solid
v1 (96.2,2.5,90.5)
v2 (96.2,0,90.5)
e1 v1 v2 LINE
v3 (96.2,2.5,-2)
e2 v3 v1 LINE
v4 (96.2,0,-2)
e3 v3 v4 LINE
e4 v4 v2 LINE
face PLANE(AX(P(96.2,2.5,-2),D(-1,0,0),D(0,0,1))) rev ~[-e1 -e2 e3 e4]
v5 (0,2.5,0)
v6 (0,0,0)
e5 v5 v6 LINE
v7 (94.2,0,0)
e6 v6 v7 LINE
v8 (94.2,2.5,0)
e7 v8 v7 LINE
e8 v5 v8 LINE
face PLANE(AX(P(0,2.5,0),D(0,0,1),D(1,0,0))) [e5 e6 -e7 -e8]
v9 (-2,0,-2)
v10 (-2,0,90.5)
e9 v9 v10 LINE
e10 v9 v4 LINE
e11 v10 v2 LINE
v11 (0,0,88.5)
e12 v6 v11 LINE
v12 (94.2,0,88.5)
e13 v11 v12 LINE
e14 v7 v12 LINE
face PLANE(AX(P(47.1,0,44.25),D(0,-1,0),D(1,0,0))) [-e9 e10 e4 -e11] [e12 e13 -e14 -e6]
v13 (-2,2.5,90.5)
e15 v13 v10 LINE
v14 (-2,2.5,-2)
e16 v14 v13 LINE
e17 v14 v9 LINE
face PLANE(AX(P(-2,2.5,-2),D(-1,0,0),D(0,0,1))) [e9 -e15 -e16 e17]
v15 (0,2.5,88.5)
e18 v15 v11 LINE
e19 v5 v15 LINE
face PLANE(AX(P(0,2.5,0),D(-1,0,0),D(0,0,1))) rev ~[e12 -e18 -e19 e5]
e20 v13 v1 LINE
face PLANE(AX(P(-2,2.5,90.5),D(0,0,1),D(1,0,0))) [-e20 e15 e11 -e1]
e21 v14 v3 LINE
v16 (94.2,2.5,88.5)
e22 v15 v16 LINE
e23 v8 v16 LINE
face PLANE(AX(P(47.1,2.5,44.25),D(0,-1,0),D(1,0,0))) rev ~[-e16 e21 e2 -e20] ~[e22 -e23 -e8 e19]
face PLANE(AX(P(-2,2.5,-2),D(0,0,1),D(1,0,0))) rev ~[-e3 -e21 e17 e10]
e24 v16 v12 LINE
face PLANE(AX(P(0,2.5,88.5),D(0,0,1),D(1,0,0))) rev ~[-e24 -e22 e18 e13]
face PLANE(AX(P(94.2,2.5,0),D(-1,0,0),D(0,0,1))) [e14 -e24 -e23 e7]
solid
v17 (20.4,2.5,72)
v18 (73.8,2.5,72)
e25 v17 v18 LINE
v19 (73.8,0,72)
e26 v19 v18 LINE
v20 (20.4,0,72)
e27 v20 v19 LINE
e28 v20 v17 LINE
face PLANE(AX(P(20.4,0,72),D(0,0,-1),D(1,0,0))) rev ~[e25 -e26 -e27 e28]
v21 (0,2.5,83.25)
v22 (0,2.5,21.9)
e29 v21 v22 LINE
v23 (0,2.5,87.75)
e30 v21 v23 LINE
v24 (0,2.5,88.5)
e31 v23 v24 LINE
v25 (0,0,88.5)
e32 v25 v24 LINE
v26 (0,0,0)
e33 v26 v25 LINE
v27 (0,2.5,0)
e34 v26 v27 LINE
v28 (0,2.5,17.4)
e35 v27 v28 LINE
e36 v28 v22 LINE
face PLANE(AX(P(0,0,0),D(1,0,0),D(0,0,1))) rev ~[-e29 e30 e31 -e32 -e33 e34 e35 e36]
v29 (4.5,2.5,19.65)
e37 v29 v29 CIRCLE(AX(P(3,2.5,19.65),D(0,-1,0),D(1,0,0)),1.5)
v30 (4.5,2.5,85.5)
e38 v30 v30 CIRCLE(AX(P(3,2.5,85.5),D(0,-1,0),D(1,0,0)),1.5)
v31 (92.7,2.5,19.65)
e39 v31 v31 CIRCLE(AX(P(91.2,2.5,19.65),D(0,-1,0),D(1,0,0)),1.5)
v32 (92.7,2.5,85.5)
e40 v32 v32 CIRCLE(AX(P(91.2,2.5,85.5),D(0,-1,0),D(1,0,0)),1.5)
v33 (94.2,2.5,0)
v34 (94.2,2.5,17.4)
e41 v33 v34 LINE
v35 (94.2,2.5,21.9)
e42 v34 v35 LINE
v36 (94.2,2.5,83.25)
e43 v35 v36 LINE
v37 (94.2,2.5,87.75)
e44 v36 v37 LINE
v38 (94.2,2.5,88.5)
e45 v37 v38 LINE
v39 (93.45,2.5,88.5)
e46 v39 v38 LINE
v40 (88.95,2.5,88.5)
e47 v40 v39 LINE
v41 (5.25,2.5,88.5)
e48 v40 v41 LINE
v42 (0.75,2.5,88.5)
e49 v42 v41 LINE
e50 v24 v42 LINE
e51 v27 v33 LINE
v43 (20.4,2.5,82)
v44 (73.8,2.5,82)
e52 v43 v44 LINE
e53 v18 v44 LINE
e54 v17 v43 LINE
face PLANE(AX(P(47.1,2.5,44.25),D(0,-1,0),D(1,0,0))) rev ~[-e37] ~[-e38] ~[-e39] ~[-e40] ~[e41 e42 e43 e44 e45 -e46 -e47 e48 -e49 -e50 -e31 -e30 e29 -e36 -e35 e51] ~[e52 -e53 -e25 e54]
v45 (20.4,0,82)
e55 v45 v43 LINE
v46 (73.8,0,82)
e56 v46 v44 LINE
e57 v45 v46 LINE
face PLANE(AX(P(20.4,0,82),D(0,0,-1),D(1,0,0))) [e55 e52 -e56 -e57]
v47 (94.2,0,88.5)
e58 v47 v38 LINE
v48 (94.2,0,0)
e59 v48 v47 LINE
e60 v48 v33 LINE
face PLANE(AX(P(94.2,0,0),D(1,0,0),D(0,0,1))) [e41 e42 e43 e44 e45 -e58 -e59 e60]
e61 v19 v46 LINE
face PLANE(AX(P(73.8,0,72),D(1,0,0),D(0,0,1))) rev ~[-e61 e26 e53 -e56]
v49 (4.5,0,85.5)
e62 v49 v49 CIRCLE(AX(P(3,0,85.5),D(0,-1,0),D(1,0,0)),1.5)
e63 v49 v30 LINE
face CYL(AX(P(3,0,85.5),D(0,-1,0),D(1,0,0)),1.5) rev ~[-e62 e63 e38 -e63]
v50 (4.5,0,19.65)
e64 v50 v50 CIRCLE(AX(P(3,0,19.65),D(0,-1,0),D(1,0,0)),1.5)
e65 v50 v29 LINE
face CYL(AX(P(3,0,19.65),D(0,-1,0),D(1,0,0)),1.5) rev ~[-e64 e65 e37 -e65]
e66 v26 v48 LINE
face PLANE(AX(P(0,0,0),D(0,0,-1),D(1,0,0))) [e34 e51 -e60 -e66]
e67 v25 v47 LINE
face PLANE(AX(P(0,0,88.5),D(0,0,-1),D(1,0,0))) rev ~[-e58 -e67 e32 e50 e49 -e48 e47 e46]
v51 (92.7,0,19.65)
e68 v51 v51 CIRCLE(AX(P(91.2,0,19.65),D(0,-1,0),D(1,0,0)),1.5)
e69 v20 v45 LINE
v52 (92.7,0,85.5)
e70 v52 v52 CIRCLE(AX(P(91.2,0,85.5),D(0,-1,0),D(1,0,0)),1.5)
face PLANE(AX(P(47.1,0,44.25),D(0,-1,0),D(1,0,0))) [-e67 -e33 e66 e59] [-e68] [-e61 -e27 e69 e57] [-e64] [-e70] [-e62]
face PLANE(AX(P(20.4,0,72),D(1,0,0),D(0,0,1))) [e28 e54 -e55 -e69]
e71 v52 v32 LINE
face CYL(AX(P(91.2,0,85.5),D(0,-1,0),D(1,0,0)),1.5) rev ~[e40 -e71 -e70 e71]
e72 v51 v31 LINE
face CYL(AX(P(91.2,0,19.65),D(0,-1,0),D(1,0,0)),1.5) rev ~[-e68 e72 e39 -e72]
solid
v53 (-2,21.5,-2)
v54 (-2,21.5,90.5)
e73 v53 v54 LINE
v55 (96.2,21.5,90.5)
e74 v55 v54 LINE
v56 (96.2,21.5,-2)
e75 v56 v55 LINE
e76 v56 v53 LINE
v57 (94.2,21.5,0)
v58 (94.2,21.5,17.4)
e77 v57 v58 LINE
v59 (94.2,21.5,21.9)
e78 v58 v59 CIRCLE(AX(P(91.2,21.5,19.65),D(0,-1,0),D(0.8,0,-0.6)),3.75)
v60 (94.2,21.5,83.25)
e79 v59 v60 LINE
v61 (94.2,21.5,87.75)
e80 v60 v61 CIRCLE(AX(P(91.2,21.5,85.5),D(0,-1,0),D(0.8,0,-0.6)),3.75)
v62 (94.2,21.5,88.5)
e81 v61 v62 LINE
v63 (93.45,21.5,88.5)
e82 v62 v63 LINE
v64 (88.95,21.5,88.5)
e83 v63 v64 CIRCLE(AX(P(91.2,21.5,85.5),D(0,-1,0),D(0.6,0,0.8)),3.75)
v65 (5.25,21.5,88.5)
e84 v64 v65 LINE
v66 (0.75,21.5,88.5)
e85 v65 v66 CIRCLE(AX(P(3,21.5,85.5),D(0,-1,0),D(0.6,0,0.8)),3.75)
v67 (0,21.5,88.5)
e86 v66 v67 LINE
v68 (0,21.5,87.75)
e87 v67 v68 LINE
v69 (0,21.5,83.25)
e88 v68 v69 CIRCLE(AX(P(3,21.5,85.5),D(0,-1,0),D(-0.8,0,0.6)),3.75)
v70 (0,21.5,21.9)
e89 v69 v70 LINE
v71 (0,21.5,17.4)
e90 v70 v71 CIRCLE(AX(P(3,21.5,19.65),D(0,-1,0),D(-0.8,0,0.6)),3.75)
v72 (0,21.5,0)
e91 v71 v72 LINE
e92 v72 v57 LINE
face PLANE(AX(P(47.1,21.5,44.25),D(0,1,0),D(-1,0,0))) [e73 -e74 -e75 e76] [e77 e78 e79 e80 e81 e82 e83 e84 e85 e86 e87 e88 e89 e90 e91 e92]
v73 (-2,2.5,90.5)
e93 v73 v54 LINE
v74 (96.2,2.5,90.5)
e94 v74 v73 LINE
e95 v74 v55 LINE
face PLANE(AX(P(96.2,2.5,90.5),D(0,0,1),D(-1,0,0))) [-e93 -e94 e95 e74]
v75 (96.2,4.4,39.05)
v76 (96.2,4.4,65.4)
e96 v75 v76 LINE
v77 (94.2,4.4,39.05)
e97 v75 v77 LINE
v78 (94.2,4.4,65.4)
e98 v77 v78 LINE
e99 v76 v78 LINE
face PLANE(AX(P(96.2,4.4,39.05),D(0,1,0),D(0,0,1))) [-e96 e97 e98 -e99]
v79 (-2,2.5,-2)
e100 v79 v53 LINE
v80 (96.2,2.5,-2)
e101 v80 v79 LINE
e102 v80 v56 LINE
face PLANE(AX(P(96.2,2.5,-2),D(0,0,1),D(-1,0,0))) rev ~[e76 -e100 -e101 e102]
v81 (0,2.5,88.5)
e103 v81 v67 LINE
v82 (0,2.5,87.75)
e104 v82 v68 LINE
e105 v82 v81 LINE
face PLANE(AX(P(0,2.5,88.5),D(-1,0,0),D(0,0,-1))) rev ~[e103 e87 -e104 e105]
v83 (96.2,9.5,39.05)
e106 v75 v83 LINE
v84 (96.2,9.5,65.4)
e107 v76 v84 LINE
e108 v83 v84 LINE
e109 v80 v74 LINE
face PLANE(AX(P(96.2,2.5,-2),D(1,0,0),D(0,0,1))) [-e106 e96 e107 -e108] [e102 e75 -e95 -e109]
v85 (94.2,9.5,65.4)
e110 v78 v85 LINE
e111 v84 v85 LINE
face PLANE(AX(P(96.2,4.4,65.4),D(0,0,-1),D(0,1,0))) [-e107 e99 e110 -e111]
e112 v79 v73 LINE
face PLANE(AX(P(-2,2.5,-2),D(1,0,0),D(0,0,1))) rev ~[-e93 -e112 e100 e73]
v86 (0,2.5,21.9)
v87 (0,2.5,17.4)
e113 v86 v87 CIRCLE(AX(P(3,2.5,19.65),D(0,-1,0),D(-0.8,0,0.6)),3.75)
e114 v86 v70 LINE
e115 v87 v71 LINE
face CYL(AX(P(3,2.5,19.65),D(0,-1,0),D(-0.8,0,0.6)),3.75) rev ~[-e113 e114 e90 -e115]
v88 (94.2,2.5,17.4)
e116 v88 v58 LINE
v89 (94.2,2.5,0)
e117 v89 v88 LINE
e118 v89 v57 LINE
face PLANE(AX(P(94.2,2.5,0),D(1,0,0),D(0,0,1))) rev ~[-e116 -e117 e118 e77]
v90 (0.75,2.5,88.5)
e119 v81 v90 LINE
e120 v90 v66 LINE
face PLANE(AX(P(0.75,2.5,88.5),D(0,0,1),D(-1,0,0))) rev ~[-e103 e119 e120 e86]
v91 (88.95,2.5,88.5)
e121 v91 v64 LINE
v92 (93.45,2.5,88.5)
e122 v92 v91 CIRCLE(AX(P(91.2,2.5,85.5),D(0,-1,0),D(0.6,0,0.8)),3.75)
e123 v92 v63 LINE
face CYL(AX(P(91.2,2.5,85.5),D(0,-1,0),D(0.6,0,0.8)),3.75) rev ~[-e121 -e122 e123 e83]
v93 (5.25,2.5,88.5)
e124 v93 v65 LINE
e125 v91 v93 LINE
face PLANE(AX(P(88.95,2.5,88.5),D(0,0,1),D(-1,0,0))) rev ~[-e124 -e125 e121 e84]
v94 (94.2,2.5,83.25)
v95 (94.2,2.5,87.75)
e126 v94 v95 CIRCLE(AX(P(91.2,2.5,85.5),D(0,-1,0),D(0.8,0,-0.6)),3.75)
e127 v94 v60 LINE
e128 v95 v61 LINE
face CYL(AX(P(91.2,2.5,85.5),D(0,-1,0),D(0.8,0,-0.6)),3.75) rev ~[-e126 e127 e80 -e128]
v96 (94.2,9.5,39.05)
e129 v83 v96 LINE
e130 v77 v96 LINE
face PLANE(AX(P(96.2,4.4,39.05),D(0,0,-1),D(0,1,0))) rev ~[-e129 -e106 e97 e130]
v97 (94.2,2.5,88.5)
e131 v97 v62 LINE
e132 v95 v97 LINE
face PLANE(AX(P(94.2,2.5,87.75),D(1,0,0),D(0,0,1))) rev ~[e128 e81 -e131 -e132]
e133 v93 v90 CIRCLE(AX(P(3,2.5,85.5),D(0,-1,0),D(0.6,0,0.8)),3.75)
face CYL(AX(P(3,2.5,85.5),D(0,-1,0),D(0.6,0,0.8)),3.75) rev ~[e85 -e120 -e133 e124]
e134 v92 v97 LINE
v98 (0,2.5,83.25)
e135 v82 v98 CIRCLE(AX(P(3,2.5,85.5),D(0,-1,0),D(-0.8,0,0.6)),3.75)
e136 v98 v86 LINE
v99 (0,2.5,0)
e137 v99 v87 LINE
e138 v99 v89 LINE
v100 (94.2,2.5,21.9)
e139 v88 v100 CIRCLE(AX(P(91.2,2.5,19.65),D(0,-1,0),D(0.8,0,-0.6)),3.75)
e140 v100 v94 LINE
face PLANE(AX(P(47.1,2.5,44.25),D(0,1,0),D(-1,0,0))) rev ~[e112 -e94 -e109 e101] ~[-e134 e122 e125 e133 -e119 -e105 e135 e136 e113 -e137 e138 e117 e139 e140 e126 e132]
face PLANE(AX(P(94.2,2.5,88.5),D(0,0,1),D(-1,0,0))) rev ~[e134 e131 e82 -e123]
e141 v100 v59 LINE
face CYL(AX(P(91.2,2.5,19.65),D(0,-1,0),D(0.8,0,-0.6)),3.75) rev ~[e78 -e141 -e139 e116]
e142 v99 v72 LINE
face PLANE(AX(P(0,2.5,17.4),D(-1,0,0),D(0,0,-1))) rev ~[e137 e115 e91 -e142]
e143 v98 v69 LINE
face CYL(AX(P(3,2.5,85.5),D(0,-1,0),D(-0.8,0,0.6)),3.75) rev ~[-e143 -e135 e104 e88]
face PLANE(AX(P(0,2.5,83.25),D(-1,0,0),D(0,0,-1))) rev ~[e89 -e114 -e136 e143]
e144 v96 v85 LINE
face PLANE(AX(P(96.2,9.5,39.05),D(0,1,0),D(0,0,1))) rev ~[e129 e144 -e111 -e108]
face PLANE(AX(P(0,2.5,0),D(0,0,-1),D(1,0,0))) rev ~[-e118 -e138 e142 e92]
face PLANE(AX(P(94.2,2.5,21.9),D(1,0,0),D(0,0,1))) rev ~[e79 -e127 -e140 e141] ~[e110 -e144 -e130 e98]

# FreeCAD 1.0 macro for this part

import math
import FreeCAD as App
import Part
import Sketcher
from FreeCAD import Vector

doc = App.newDocument("Part")
body = doc.addObject("PartDesign::Body", "Body")
body.AllowCompound = True

# Sketch on XZ plane
sketch1 = body.newObject("Sketcher::SketchObject", "Sketch")
sketch1.AttachmentSupport = (doc.getObject("XZ_Plane"), [""])
sketch1.MapMode = "FlatFace"
sketch1.addGeometry([
    Part.LineSegment(Vector(0, 88.5, 0), Vector(0, 0, 0)),  # 0
    Part.LineSegment(Vector(0, 0, 0), Vector(94.2, 0, 0)),  # 1
    Part.LineSegment(Vector(94.2, 0, 0), Vector(94.2, 88.5, 0)),  # 2
    Part.LineSegment(Vector(94.2, 88.5, 0), Vector(0, 88.5, 0)),  # 3
    Part.Circle(Vector(3, 19.6, 0), Vector(0, 0, 1), 1.5),  # 4
    Part.Circle(Vector(91.2, 19.6, 0), Vector(0, 0, 1), 1.5),  # 5
    Part.Circle(Vector(3, 85.5, 0), Vector(0, 0, 1), 1.5),  # 6
    Part.LineSegment(Vector(73.8, 72, 0), Vector(20.4, 72, 0)),  # 7
    Part.LineSegment(Vector(20.4, 72, 0), Vector(20.4, 82, 0)),  # 8
    Part.LineSegment(Vector(20.4, 82, 0), Vector(73.8, 82, 0)),  # 9
    Part.LineSegment(Vector(73.8, 82, 0), Vector(73.8, 72, 0)),  # 10
    Part.Circle(Vector(91.2, 85.5, 0), Vector(0, 0, 1), 1.5),  # 11
], False)
sketch1.addConstraint([
    Sketcher.Constraint("Coincident", 0, 2, 1, 1),
    Sketcher.Constraint("Coincident", 1, 2, 2, 1),
    Sketcher.Constraint("Coincident", 2, 2, 3, 1),
    Sketcher.Constraint("Coincident", 3, 2, 0, 1),
    Sketcher.Constraint("Coincident", 7, 2, 8, 1),
    Sketcher.Constraint("Coincident", 8, 2, 9, 1),
    Sketcher.Constraint("Coincident", 9, 2, 10, 1),
    Sketcher.Constraint("Coincident", 10, 2, 7, 1),
    Sketcher.Constraint("Vertical", 0),
    Sketcher.Constraint("Horizontal", 1),
    Sketcher.Constraint("Vertical", 2),
    Sketcher.Constraint("Horizontal", 3),
    Sketcher.Constraint("Horizontal", 7),
    Sketcher.Constraint("Vertical", 8),
    Sketcher.Constraint("Horizontal", 9),
    Sketcher.Constraint("Vertical", 10),
    Sketcher.Constraint("Coincident", 0, 2, -1, 1),
    Sketcher.Constraint("Equal", 4, 5),
    Sketcher.Constraint("Equal", 5, 6),
    Sketcher.Constraint("Equal", 6, 11),
    Sketcher.Constraint("Horizontal", 4, 3, 5, 3),
    Sketcher.Constraint("Horizontal", 6, 3, 11, 3),
    Sketcher.Constraint("Vertical", 4, 3, 6, 3),
    Sketcher.Constraint("Vertical", 5, 3, 11, 3),
    Sketcher.Constraint("Diameter", 4, 3.0),
    Sketcher.Constraint("DistanceY", 8, 1, 8, 2, 10.0),
    Sketcher.Constraint("DistanceX", 1, 1, 1, 2, 94.2),
    Sketcher.Constraint("DistanceX", 7, 2, 7, 1, 53.4),
    Sketcher.Constraint("DistanceY", 0, 2, 0, 1, 88.5),
    Sketcher.Constraint("DistanceX", -1, 1, 4, 3, 3.0),
    Sketcher.Constraint("DistanceY", -1, 1, 7, 2, 72.0),
    Sketcher.Constraint("DistanceX", 5, 3, 1, 2, 3.0),
    Sketcher.Constraint("DistanceY", 11, 3, 2, 2, 3.0),
    Sketcher.Constraint("DistanceX", -1, 1, 7, 2, 20.4),
    Sketcher.Constraint("DistanceY", -1, 1, 4, 3, 19.65),
])
pad1 = body.newObject("PartDesign::Pad", "Pad")
pad1.Profile = sketch1
pad1.Length = 2.5
pad1.Reversed = True

# Sketch on XZ plane
sketch2 = body.newObject("Sketcher::SketchObject", "Sketch001")
sketch2.AttachmentSupport = (doc.getObject("XZ_Plane"), [""])
sketch2.MapMode = "FlatFace"
sketch2.AttachmentOffset = App.Placement(Vector(0, 0, -2.5), App.Rotation())
sketch2.addGeometry([
    Part.LineSegment(Vector(96.2, 90.5, 0), Vector(96.2, -2, 0)),  # 0
    Part.LineSegment(Vector(96.2, -2, 0), Vector(-2, -2, 0)),  # 1
    Part.LineSegment(Vector(-2, -2, 0), Vector(-2, 90.5, 0)),  # 2
    Part.LineSegment(Vector(-2, 90.5, 0), Vector(96.2, 90.5, 0)),  # 3
    Part.ArcOfCircle(Part.Circle(Vector(91.2, 85.5, 0), Vector(0, 0, 1), 3.8), math.radians(-37), math.radians(37)),  # 4
    Part.LineSegment(Vector(94.2, 87.8, 0), Vector(94.2, 88.5, 0)),  # 5
    Part.LineSegment(Vector(94.2, 88.5, 0), Vector(93.5, 88.5, 0)),  # 6
    Part.ArcOfCircle(Part.Circle(Vector(91.2, 85.5, 0), Vector(0, 0, 1), 3.8), math.radians(53), math.radians(127)),  # 7
    Part.LineSegment(Vector(89, 88.5, 0), Vector(5.2, 88.5, 0)),  # 8
    Part.ArcOfCircle(Part.Circle(Vector(3, 85.5, 0), Vector(0, 0, 1), 3.8), math.radians(53), math.radians(127)),  # 9
    Part.LineSegment(Vector(0.8, 88.5, 0), Vector(0, 88.5, 0)),  # 10
    Part.LineSegment(Vector(0, 88.5, 0), Vector(0, 87.8, 0)),  # 11
    Part.ArcOfCircle(Part.Circle(Vector(3, 85.5, 0), Vector(0, 0, 1), 3.8), math.radians(143), math.radians(217)),  # 12
    Part.LineSegment(Vector(0, 83.2, 0), Vector(0, 21.9, 0)),  # 13
    Part.ArcOfCircle(Part.Circle(Vector(3, 19.6, 0), Vector(0, 0, 1), 3.8), math.radians(143), math.radians(217)),  # 14
    Part.LineSegment(Vector(0, 17.4, 0), Vector(0, 0, 0)),  # 15
    Part.LineSegment(Vector(0, 0, 0), Vector(94.2, 0, 0)),  # 16
    Part.LineSegment(Vector(94.2, 0, 0), Vector(94.2, 17.4, 0)),  # 17
    Part.ArcOfCircle(Part.Circle(Vector(91.2, 19.6, 0), Vector(0, 0, 1), 3.8), math.radians(-37), math.radians(37)),  # 18
    Part.LineSegment(Vector(94.2, 21.9, 0), Vector(94.2, 83.2, 0)),  # 19
], False)
sketch2.addConstraint([
    Sketcher.Constraint("Coincident", 0, 2, 1, 1),
    Sketcher.Constraint("Coincident", 1, 2, 2, 1),
    Sketcher.Constraint("Coincident", 2, 2, 3, 1),
    Sketcher.Constraint("Coincident", 3, 2, 0, 1),
    Sketcher.Constraint("Coincident", 4, 2, 5, 1),
    Sketcher.Constraint("Coincident", 5, 2, 6, 1),
    Sketcher.Constraint("Coincident", 6, 2, 7, 1),
    Sketcher.Constraint("Coincident", 7, 2, 8, 1),
    Sketcher.Constraint("Coincident", 8, 2, 9, 1),
    Sketcher.Constraint("Coincident", 9, 2, 10, 1),
    Sketcher.Constraint("Coincident", 10, 2, 11, 1),
    Sketcher.Constraint("Coincident", 11, 2, 12, 1),
    Sketcher.Constraint("Coincident", 12, 2, 13, 1),
    Sketcher.Constraint("Coincident", 13, 2, 14, 1),
    Sketcher.Constraint("Coincident", 14, 2, 15, 1),
    Sketcher.Constraint("Coincident", 15, 2, 16, 1),
    Sketcher.Constraint("Coincident", 16, 2, 17, 1),
    Sketcher.Constraint("Coincident", 17, 2, 18, 1),
    Sketcher.Constraint("Coincident", 18, 2, 19, 1),
    Sketcher.Constraint("Coincident", 19, 2, 4, 1),
    Sketcher.Constraint("Vertical", 0),
    Sketcher.Constraint("Horizontal", 1),
    Sketcher.Constraint("Vertical", 2),
    Sketcher.Constraint("Horizontal", 3),
    Sketcher.Constraint("Vertical", 5),
    Sketcher.Constraint("Horizontal", 6),
    Sketcher.Constraint("Horizontal", 8),
    Sketcher.Constraint("Horizontal", 10),
    Sketcher.Constraint("Vertical", 11),
    Sketcher.Constraint("Vertical", 13),
    Sketcher.Constraint("Vertical", 15),
    Sketcher.Constraint("Horizontal", 16),
    Sketcher.Constraint("Vertical", 17),
    Sketcher.Constraint("Vertical", 19),
    Sketcher.Constraint("Coincident", 15, 2, -1, 1),
    Sketcher.Constraint("Coincident", 7, 3, 4, 3),
    Sketcher.Constraint("Coincident", 12, 3, 9, 3),
    Sketcher.Constraint("Equal", 4, 7),
    Sketcher.Constraint("Equal", 7, 9),
    Sketcher.Constraint("Equal", 9, 12),
    Sketcher.Constraint("Equal", 12, 14),
    Sketcher.Constraint("Equal", 14, 18),
    Sketcher.Constraint("PointOnObject", 10, 2, -2),
    Sketcher.Constraint("PointOnObject", 12, 2, -2),
    Sketcher.Constraint("Horizontal", 7, 3, 9, 3),
    Sketcher.Constraint("Horizontal", 14, 3, 18, 3),
    Sketcher.Constraint("Horizontal", 6, 2, 7, 2),
    Sketcher.Constraint("Horizontal", 8, 2, 9, 2),
    Sketcher.Constraint("Horizontal", 4, 2, 11, 2),
    Sketcher.Constraint("Horizontal", 14, 2, 17, 2),
    Sketcher.Constraint("Horizontal", 13, 2, 18, 2),
    Sketcher.Constraint("Horizontal", 12, 2, 19, 2),
    Sketcher.Constraint("Vertical", 12, 3, 14, 3),
    Sketcher.Constraint("Equal", 10, 5),
    Sketcher.Constraint("Radius", 4, 3.75),
    Sketcher.Constraint("DistanceX", 1, 2, 1, 1, 98.2),
    Sketcher.Constraint("DistanceX", 8, 2, 8, 1, 83.7),
    Sketcher.Constraint("DistanceX", 16, 1, 16, 2, 94.2),
    Sketcher.Constraint("DistanceY", 0, 2, 0, 1, 92.5),
    Sketcher.Constraint("DistanceY", 15, 2, 15, 1, 17.4),
    Sketcher.Constraint("DistanceY", 0, 2, -1, 1, 2.0),
    Sketcher.Constraint("DistanceX", 1, 2, -1, 1, 2.0),
    Sketcher.Constraint("DistanceY", 9, 3, 2, 2, 5.0),
])
pad2 = body.newObject("PartDesign::Pad", "Pad001")
pad2.Profile = sketch2
pad2.Length = 19
pad2.Reversed = True

# Sketch on YZ plane
sketch3 = body.newObject("Sketcher::SketchObject", "Sketch002")
sketch3.AttachmentSupport = (doc.getObject("YZ_Plane"), [""])
sketch3.MapMode = "FlatFace"
sketch3.AttachmentOffset = App.Placement(Vector(0, 0, 96.2), App.Rotation())
sketch3.addGeometry([
    Part.LineSegment(Vector(4, 65, 0), Vector(4, 39, 0)),
    Part.LineSegment(Vector(4, 39, 0), Vector(10, 39, 0)),
    Part.LineSegment(Vector(10, 39, 0), Vector(10, 65, 0)),
    Part.LineSegment(Vector(10, 65, 0), Vector(4, 65, 0)),
], False)
sketch3.addConstraint([
    Sketcher.Constraint("Coincident", 0, 2, 1, 1),
    Sketcher.Constraint("Coincident", 1, 2, 2, 1),
    Sketcher.Constraint("Coincident", 2, 2, 3, 1),
    Sketcher.Constraint("Coincident", 3, 2, 0, 1),
    Sketcher.Constraint("Vertical", 0),
    Sketcher.Constraint("Horizontal", 1),
    Sketcher.Constraint("Vertical", 2),
    Sketcher.Constraint("Horizontal", 3),
    Sketcher.Constraint("DistanceX", 1, 1, 1, 2, 5.1),
    Sketcher.Constraint("DistanceY", 0, 2, 0, 1, 26.35),
    Sketcher.Constraint("DistanceX", -1, 1, 0, 2, 4.4),
    Sketcher.Constraint("DistanceY", -1, 1, 2, 2, 65.4),
])
pocket1 = body.newObject("PartDesign::Pocket", "Pocket")
pocket1.Profile = sketch3
pocket1.Length = 2.1
body2 = doc.addObject("PartDesign::Body", "Body001")

# Sketch on XZ plane
sketch4 = body2.newObject("Sketcher::SketchObject", "Sketch003")
sketch4.AttachmentSupport = (doc.getObject("XZ_Plane001"), [""])
sketch4.MapMode = "FlatFace"
sketch4.AttachmentOffset = App.Placement(Vector(0, 0, -2.5), App.Rotation())
sketch4.addGeometry([
    Part.LineSegment(Vector(-2, 90, 0), Vector(-2, -2, 0)),  # 0
    Part.LineSegment(Vector(-2, -2, 0), Vector(96, -2, 0)),  # 1
    Part.LineSegment(Vector(96, -2, 0), Vector(96, 90, 0)),  # 2
    Part.LineSegment(Vector(96, 90, 0), Vector(-2, 90, 0)),  # 3
    Part.LineSegment(Vector(94, 0, 0), Vector(0, 0, 0)),  # 4
    Part.LineSegment(Vector(0, 0, 0), Vector(0, 88, 0)),  # 5
    Part.LineSegment(Vector(0, 88, 0), Vector(94, 88, 0)),  # 6
    Part.LineSegment(Vector(94, 88, 0), Vector(94, 0, 0)),  # 7
], False)
sketch4.addConstraint([
    Sketcher.Constraint("Coincident", 0, 2, 1, 1),
    Sketcher.Constraint("Coincident", 1, 2, 2, 1),
    Sketcher.Constraint("Coincident", 2, 2, 3, 1),
    Sketcher.Constraint("Coincident", 3, 2, 0, 1),
    Sketcher.Constraint("Coincident", 4, 2, 5, 1),
    Sketcher.Constraint("Coincident", 5, 2, 6, 1),
    Sketcher.Constraint("Coincident", 6, 2, 7, 1),
    Sketcher.Constraint("Coincident", 7, 2, 4, 1),
    Sketcher.Constraint("Vertical", 0),
    Sketcher.Constraint("Horizontal", 1),
    Sketcher.Constraint("Vertical", 2),
    Sketcher.Constraint("Horizontal", 3),
    Sketcher.Constraint("Horizontal", 4),
    Sketcher.Constraint("Vertical", 5),
    Sketcher.Constraint("Horizontal", 6),
    Sketcher.Constraint("Vertical", 7),
    Sketcher.Constraint("Coincident", 4, 2, -1, 1),
    Sketcher.Constraint("DistanceX", 1, 1, 1, 2, 98.2),
    Sketcher.Constraint("DistanceX", 4, 2, 4, 1, 94.2),
    Sketcher.Constraint("DistanceY", 0, 2, 0, 1, 92.5),
    Sketcher.Constraint("DistanceY", 5, 1, 5, 2, 88.5),
    Sketcher.Constraint("DistanceX", 0, 2, -1, 1, 2.0),
    Sketcher.Constraint("DistanceY", 0, 2, -1, 1, 2.0),
])
pad3 = body2.newObject("PartDesign::Pad", "Pad002")
pad3.Profile = sketch4
pad3.Length = 2.5

doc.recompute()
